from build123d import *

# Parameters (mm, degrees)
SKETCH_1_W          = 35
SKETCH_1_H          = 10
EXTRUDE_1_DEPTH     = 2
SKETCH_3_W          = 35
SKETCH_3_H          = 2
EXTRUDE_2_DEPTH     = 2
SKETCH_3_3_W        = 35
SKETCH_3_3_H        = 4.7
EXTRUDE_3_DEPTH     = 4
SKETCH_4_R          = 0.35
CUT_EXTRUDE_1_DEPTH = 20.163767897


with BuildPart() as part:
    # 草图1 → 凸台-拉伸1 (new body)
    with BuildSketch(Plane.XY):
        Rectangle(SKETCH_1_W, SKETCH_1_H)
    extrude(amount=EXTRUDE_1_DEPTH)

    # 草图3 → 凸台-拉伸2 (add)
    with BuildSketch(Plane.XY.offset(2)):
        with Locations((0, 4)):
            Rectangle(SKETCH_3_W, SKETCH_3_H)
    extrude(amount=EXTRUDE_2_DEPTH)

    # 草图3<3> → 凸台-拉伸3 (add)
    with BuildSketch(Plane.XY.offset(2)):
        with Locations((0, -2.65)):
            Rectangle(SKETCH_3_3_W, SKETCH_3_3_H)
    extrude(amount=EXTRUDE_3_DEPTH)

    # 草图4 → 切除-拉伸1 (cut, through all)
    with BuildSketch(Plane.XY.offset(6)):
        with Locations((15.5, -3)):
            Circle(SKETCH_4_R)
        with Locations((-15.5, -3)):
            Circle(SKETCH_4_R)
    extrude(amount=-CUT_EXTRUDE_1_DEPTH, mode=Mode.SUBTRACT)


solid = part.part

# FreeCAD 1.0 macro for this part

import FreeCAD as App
import Part
import Sketcher


def add_polygon(sketch, points):
    """Adds a closed chain of lines whose ends are joined by coincident constraints."""
    first, n = sketch.GeometryCount, len(points)
    for a, b in zip(points, points[1:] + points[:1]):
        sketch.addGeometry(Part.LineSegment(App.Vector(*a, 0), App.Vector(*b, 0)), False)
    for i in range(n):
        sketch.addConstraint(Sketcher.Constraint("Coincident", first + i, 2, first + (i + 1) % n, 1))

doc = App.newDocument("Part")
body = doc.addObject("PartDesign::Body", "Body")

# Sketch on XY plane
sketch1 = body.newObject("Sketcher::SketchObject", "Sketch")
sketch1.AttachmentSupport = (doc.getObject("XY_Plane"), [""])
sketch1.MapMode = "FlatFace"
add_polygon(sketch1, [(-18, 5), (-18, -5), (18, -5), (18, 5)])  # lines 0-3
sketch1.addConstraint([
    Sketcher.Constraint("Vertical", 0),
    Sketcher.Constraint("Horizontal", 1),
    Sketcher.Constraint("Vertical", 2),
    Sketcher.Constraint("Horizontal", 3),
    Sketcher.Constraint("Symmetric", 0, 2, 2, 2, -1, 1),
    Sketcher.Constraint("DistanceX", 1, 1, 1, 2, 35.0),
    Sketcher.Constraint("DistanceY", 0, 2, 0, 1, 10.0),
])
pad1 = body.newObject("PartDesign::Pad", "Pad")
pad1.Profile = sketch1
pad1.Length = 2

# Sketch on XY plane
sketch2 = body.newObject("Sketcher::SketchObject", "Sketch001")
sketch2.AttachmentSupport = (doc.getObject("XY_Plane"), [""])
sketch2.MapMode = "FlatFace"
sketch2.AttachmentOffset = App.Placement(App.Vector(0, 0, 2), App.Rotation())
add_polygon(sketch2, [(-17.5, 5), (-17.5, 3), (17.5, 3), (17.5, 5)])  # lines 0-3
sketch2.addConstraint([
    Sketcher.Constraint("Vertical", 0),
    Sketcher.Constraint("Horizontal", 1),
    Sketcher.Constraint("Vertical", 2),
    Sketcher.Constraint("Horizontal", 3),
    Sketcher.Constraint("DistanceX", 1, 1, 1, 2, 35.0),
    Sketcher.Constraint("DistanceY", 0, 2, 0, 1, 2.0),
    Sketcher.Constraint("DistanceY", -1, 1, 0, 2, 3.0),
    Sketcher.Constraint("DistanceX", 0, 2, -1, 1, 17.5),
])
pad2 = body.newObject("PartDesign::Pad", "Pad001")
pad2.Profile = sketch2
pad2.Length = 2

# Sketch on XY plane
sketch3 = body.newObject("Sketcher::SketchObject", "Sketch002")
sketch3.AttachmentSupport = (doc.getObject("XY_Plane"), [""])
sketch3.MapMode = "FlatFace"
sketch3.AttachmentOffset = App.Placement(App.Vector(0, 0, 2), App.Rotation())
add_polygon(sketch3, [(-17.5, -0.3), (-17.5, -5), (17.5, -5), (17.5, -0.3)])  # lines 0-3
sketch3.addConstraint([
    Sketcher.Constraint("Vertical", 0),
    Sketcher.Constraint("Horizontal", 1),
    Sketcher.Constraint("Vertical", 2),
    Sketcher.Constraint("Horizontal", 3),
    Sketcher.Constraint("DistanceX", 1, 1, 1, 2, 35.0),
    Sketcher.Constraint("DistanceY", 0, 2, 0, 1, 4.7),
    Sketcher.Constraint("DistanceY", 0, 2, -1, 1, 5.0),
    Sketcher.Constraint("DistanceX", 0, 2, -1, 1, 17.5),
])
pad3 = body.newObject("PartDesign::Pad", "Pad002")
pad3.Profile = sketch3
pad3.Length = 4

# Sketch on XY plane
sketch4 = body.newObject("Sketcher::SketchObject", "Sketch003")
sketch4.AttachmentSupport = (doc.getObject("XY_Plane"), [""])
sketch4.MapMode = "FlatFace"
sketch4.AttachmentOffset = App.Placement(App.Vector(0, 0, 6), App.Rotation())
sketch4.addGeometry([
    Part.Circle(App.Vector(15.5, -3, 0), App.Vector(0, 0, 1), 0.35),
    Part.Circle(App.Vector(-15.5, -3, 0), App.Vector(0, 0, 1), 0.35),
], False)
sketch4.addConstraint([
    Sketcher.Constraint("Equal", 0, 1),
    Sketcher.Constraint("Symmetric", 0, 3, 1, 3, -2),
    Sketcher.Constraint("Diameter", 0, 0.7),
    Sketcher.Constraint("DistanceY", 0, 3, -1, 1, 3.0),
    Sketcher.Constraint("DistanceX", 1, 3, 0, 3, 31.0),
])
pocket1 = body.newObject("PartDesign::Pocket", "Pocket")
pocket1.Profile = sketch4
pocket1.Type = "ThroughAll"

doc.recompute()
